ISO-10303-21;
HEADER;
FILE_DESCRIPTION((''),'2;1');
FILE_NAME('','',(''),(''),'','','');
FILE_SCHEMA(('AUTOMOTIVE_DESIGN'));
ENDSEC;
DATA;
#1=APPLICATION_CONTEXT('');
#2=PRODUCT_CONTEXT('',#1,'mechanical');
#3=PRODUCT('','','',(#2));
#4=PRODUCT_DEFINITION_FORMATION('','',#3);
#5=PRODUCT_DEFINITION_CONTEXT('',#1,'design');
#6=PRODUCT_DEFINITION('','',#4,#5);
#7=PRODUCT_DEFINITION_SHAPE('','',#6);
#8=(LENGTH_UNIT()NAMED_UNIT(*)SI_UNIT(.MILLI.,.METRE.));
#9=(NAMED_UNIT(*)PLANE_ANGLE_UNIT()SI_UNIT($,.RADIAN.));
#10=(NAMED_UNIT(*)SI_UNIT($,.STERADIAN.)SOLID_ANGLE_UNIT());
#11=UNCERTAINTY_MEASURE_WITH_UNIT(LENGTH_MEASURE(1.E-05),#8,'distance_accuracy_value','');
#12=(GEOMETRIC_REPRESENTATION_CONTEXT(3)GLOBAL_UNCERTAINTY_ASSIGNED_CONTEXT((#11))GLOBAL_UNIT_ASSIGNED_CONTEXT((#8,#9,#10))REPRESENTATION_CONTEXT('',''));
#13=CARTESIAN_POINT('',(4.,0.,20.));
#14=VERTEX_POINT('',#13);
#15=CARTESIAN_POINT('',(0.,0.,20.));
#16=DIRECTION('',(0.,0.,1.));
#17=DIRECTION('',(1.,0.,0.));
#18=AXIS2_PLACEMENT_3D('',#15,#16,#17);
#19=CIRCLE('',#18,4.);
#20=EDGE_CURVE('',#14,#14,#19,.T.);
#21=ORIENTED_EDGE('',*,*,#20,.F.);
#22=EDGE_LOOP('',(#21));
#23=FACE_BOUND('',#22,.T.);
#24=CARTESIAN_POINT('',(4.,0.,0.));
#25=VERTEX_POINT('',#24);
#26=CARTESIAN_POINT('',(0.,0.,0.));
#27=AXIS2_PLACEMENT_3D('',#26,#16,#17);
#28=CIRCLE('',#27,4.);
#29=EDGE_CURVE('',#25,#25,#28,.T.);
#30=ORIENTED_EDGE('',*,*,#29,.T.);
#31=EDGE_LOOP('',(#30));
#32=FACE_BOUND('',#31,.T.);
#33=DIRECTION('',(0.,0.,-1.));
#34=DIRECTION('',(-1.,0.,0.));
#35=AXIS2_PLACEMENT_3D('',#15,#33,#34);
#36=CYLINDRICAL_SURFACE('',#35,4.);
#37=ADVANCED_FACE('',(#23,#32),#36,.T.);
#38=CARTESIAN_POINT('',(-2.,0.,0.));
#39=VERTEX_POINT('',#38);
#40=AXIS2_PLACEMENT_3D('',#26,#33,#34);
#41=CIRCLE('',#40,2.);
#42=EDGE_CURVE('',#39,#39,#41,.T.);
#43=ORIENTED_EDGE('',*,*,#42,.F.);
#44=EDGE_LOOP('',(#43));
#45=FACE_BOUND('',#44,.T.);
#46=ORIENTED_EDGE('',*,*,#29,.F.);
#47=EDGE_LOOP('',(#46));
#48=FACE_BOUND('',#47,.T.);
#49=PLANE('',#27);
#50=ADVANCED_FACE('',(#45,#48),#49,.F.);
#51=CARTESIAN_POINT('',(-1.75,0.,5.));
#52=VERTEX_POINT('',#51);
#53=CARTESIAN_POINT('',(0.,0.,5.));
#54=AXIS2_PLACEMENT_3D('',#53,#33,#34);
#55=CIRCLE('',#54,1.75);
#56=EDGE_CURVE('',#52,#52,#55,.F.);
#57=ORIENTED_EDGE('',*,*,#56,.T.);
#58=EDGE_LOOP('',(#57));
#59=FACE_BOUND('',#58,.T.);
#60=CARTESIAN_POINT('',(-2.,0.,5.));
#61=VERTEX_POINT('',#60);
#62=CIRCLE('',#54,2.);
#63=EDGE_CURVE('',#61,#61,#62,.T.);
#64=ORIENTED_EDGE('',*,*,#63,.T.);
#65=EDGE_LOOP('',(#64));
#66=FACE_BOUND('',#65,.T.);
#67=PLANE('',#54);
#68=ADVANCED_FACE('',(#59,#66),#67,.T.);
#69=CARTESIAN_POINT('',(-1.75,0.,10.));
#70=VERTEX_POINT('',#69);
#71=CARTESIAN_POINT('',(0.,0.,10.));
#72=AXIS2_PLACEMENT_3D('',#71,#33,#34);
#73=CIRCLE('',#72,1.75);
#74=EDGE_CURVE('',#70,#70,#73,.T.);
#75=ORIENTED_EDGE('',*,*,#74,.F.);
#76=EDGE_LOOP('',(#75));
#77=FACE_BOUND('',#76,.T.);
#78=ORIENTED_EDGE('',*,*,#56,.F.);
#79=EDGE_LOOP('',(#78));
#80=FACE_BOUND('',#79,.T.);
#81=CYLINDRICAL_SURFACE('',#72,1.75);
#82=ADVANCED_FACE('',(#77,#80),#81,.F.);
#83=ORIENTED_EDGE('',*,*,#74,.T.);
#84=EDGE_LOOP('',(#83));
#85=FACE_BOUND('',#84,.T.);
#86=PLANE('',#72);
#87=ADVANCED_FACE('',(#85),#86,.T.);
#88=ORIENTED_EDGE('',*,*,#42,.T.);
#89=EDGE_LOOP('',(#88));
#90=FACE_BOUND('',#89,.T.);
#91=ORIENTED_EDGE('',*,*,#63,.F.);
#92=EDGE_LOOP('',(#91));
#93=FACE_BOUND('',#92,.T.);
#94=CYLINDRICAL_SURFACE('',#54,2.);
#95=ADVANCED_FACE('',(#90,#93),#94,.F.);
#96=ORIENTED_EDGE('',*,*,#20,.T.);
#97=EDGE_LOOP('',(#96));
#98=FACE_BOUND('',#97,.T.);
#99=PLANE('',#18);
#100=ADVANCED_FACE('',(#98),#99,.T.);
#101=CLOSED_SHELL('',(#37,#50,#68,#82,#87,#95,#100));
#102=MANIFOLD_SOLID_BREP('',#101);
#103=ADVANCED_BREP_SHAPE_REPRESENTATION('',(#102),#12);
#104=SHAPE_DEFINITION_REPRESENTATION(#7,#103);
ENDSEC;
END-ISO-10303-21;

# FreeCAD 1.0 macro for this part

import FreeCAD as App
import Part
import Sketcher
from FreeCAD import Vector
Q = App.Units.Quantity

doc = App.newDocument("Part")
body = doc.addObject("PartDesign::Body", "Body")

# Sketch on XY plane
sketch1 = body.newObject("Sketcher::SketchObject", "Sketch")
sketch1.AttachmentSupport = (doc.getObject("XY_Plane"), [""])
sketch1.MapMode = "FlatFace"
sketch1.addGeometry(Part.Circle(Vector(0, 0, 0), Vector(0, 0, 1), 4), False)
sketch1.addConstraint([
    Sketcher.Constraint("Coincident", 0, 3, -1, 1),
    Sketcher.Constraint("Diameter", 0, Q("8 mm")),
])
pad1 = body.newObject("PartDesign::Pad", "Pad")
pad1.Profile = sketch1
pad1.Length = 20

# Sketch on XY plane
sketch2 = body.newObject("Sketcher::SketchObject", "Sketch001")
sketch2.AttachmentSupport = (doc.getObject("XY_Plane"), [""])
sketch2.MapMode = "FlatFace"
sketch2.addGeometry(Part.Circle(Vector(0, 0, 0), Vector(0, 0, 1), 1.8), False)
sketch2.addConstraint([
    Sketcher.Constraint("Coincident", 0, 3, -1, 1),
    Sketcher.Constraint("Diameter", 0, Q("3.5 mm")),
])
pocket1 = body.newObject("PartDesign::Pocket", "Pocket")
pocket1.Profile = sketch2
pocket1.Length = 10
pocket1.Reversed = True

# Sketch on XY plane
sketch3 = body.newObject("Sketcher::SketchObject", "Sketch002")
sketch3.AttachmentSupport = (doc.getObject("XY_Plane"), [""])
sketch3.MapMode = "FlatFace"
sketch3.addGeometry(Part.Circle(Vector(0, 0, 0), Vector(0, 0, 1), 2), False)
sketch3.addConstraint([
    Sketcher.Constraint("Coincident", 0, 3, -1, 1),
    Sketcher.Constraint("Diameter", 0, Q("4 mm")),
])
pocket2 = body.newObject("PartDesign::Pocket", "Pocket001")
pocket2.Profile = sketch3
pocket2.Length = 5
pocket2.Reversed = True

doc.recompute()
